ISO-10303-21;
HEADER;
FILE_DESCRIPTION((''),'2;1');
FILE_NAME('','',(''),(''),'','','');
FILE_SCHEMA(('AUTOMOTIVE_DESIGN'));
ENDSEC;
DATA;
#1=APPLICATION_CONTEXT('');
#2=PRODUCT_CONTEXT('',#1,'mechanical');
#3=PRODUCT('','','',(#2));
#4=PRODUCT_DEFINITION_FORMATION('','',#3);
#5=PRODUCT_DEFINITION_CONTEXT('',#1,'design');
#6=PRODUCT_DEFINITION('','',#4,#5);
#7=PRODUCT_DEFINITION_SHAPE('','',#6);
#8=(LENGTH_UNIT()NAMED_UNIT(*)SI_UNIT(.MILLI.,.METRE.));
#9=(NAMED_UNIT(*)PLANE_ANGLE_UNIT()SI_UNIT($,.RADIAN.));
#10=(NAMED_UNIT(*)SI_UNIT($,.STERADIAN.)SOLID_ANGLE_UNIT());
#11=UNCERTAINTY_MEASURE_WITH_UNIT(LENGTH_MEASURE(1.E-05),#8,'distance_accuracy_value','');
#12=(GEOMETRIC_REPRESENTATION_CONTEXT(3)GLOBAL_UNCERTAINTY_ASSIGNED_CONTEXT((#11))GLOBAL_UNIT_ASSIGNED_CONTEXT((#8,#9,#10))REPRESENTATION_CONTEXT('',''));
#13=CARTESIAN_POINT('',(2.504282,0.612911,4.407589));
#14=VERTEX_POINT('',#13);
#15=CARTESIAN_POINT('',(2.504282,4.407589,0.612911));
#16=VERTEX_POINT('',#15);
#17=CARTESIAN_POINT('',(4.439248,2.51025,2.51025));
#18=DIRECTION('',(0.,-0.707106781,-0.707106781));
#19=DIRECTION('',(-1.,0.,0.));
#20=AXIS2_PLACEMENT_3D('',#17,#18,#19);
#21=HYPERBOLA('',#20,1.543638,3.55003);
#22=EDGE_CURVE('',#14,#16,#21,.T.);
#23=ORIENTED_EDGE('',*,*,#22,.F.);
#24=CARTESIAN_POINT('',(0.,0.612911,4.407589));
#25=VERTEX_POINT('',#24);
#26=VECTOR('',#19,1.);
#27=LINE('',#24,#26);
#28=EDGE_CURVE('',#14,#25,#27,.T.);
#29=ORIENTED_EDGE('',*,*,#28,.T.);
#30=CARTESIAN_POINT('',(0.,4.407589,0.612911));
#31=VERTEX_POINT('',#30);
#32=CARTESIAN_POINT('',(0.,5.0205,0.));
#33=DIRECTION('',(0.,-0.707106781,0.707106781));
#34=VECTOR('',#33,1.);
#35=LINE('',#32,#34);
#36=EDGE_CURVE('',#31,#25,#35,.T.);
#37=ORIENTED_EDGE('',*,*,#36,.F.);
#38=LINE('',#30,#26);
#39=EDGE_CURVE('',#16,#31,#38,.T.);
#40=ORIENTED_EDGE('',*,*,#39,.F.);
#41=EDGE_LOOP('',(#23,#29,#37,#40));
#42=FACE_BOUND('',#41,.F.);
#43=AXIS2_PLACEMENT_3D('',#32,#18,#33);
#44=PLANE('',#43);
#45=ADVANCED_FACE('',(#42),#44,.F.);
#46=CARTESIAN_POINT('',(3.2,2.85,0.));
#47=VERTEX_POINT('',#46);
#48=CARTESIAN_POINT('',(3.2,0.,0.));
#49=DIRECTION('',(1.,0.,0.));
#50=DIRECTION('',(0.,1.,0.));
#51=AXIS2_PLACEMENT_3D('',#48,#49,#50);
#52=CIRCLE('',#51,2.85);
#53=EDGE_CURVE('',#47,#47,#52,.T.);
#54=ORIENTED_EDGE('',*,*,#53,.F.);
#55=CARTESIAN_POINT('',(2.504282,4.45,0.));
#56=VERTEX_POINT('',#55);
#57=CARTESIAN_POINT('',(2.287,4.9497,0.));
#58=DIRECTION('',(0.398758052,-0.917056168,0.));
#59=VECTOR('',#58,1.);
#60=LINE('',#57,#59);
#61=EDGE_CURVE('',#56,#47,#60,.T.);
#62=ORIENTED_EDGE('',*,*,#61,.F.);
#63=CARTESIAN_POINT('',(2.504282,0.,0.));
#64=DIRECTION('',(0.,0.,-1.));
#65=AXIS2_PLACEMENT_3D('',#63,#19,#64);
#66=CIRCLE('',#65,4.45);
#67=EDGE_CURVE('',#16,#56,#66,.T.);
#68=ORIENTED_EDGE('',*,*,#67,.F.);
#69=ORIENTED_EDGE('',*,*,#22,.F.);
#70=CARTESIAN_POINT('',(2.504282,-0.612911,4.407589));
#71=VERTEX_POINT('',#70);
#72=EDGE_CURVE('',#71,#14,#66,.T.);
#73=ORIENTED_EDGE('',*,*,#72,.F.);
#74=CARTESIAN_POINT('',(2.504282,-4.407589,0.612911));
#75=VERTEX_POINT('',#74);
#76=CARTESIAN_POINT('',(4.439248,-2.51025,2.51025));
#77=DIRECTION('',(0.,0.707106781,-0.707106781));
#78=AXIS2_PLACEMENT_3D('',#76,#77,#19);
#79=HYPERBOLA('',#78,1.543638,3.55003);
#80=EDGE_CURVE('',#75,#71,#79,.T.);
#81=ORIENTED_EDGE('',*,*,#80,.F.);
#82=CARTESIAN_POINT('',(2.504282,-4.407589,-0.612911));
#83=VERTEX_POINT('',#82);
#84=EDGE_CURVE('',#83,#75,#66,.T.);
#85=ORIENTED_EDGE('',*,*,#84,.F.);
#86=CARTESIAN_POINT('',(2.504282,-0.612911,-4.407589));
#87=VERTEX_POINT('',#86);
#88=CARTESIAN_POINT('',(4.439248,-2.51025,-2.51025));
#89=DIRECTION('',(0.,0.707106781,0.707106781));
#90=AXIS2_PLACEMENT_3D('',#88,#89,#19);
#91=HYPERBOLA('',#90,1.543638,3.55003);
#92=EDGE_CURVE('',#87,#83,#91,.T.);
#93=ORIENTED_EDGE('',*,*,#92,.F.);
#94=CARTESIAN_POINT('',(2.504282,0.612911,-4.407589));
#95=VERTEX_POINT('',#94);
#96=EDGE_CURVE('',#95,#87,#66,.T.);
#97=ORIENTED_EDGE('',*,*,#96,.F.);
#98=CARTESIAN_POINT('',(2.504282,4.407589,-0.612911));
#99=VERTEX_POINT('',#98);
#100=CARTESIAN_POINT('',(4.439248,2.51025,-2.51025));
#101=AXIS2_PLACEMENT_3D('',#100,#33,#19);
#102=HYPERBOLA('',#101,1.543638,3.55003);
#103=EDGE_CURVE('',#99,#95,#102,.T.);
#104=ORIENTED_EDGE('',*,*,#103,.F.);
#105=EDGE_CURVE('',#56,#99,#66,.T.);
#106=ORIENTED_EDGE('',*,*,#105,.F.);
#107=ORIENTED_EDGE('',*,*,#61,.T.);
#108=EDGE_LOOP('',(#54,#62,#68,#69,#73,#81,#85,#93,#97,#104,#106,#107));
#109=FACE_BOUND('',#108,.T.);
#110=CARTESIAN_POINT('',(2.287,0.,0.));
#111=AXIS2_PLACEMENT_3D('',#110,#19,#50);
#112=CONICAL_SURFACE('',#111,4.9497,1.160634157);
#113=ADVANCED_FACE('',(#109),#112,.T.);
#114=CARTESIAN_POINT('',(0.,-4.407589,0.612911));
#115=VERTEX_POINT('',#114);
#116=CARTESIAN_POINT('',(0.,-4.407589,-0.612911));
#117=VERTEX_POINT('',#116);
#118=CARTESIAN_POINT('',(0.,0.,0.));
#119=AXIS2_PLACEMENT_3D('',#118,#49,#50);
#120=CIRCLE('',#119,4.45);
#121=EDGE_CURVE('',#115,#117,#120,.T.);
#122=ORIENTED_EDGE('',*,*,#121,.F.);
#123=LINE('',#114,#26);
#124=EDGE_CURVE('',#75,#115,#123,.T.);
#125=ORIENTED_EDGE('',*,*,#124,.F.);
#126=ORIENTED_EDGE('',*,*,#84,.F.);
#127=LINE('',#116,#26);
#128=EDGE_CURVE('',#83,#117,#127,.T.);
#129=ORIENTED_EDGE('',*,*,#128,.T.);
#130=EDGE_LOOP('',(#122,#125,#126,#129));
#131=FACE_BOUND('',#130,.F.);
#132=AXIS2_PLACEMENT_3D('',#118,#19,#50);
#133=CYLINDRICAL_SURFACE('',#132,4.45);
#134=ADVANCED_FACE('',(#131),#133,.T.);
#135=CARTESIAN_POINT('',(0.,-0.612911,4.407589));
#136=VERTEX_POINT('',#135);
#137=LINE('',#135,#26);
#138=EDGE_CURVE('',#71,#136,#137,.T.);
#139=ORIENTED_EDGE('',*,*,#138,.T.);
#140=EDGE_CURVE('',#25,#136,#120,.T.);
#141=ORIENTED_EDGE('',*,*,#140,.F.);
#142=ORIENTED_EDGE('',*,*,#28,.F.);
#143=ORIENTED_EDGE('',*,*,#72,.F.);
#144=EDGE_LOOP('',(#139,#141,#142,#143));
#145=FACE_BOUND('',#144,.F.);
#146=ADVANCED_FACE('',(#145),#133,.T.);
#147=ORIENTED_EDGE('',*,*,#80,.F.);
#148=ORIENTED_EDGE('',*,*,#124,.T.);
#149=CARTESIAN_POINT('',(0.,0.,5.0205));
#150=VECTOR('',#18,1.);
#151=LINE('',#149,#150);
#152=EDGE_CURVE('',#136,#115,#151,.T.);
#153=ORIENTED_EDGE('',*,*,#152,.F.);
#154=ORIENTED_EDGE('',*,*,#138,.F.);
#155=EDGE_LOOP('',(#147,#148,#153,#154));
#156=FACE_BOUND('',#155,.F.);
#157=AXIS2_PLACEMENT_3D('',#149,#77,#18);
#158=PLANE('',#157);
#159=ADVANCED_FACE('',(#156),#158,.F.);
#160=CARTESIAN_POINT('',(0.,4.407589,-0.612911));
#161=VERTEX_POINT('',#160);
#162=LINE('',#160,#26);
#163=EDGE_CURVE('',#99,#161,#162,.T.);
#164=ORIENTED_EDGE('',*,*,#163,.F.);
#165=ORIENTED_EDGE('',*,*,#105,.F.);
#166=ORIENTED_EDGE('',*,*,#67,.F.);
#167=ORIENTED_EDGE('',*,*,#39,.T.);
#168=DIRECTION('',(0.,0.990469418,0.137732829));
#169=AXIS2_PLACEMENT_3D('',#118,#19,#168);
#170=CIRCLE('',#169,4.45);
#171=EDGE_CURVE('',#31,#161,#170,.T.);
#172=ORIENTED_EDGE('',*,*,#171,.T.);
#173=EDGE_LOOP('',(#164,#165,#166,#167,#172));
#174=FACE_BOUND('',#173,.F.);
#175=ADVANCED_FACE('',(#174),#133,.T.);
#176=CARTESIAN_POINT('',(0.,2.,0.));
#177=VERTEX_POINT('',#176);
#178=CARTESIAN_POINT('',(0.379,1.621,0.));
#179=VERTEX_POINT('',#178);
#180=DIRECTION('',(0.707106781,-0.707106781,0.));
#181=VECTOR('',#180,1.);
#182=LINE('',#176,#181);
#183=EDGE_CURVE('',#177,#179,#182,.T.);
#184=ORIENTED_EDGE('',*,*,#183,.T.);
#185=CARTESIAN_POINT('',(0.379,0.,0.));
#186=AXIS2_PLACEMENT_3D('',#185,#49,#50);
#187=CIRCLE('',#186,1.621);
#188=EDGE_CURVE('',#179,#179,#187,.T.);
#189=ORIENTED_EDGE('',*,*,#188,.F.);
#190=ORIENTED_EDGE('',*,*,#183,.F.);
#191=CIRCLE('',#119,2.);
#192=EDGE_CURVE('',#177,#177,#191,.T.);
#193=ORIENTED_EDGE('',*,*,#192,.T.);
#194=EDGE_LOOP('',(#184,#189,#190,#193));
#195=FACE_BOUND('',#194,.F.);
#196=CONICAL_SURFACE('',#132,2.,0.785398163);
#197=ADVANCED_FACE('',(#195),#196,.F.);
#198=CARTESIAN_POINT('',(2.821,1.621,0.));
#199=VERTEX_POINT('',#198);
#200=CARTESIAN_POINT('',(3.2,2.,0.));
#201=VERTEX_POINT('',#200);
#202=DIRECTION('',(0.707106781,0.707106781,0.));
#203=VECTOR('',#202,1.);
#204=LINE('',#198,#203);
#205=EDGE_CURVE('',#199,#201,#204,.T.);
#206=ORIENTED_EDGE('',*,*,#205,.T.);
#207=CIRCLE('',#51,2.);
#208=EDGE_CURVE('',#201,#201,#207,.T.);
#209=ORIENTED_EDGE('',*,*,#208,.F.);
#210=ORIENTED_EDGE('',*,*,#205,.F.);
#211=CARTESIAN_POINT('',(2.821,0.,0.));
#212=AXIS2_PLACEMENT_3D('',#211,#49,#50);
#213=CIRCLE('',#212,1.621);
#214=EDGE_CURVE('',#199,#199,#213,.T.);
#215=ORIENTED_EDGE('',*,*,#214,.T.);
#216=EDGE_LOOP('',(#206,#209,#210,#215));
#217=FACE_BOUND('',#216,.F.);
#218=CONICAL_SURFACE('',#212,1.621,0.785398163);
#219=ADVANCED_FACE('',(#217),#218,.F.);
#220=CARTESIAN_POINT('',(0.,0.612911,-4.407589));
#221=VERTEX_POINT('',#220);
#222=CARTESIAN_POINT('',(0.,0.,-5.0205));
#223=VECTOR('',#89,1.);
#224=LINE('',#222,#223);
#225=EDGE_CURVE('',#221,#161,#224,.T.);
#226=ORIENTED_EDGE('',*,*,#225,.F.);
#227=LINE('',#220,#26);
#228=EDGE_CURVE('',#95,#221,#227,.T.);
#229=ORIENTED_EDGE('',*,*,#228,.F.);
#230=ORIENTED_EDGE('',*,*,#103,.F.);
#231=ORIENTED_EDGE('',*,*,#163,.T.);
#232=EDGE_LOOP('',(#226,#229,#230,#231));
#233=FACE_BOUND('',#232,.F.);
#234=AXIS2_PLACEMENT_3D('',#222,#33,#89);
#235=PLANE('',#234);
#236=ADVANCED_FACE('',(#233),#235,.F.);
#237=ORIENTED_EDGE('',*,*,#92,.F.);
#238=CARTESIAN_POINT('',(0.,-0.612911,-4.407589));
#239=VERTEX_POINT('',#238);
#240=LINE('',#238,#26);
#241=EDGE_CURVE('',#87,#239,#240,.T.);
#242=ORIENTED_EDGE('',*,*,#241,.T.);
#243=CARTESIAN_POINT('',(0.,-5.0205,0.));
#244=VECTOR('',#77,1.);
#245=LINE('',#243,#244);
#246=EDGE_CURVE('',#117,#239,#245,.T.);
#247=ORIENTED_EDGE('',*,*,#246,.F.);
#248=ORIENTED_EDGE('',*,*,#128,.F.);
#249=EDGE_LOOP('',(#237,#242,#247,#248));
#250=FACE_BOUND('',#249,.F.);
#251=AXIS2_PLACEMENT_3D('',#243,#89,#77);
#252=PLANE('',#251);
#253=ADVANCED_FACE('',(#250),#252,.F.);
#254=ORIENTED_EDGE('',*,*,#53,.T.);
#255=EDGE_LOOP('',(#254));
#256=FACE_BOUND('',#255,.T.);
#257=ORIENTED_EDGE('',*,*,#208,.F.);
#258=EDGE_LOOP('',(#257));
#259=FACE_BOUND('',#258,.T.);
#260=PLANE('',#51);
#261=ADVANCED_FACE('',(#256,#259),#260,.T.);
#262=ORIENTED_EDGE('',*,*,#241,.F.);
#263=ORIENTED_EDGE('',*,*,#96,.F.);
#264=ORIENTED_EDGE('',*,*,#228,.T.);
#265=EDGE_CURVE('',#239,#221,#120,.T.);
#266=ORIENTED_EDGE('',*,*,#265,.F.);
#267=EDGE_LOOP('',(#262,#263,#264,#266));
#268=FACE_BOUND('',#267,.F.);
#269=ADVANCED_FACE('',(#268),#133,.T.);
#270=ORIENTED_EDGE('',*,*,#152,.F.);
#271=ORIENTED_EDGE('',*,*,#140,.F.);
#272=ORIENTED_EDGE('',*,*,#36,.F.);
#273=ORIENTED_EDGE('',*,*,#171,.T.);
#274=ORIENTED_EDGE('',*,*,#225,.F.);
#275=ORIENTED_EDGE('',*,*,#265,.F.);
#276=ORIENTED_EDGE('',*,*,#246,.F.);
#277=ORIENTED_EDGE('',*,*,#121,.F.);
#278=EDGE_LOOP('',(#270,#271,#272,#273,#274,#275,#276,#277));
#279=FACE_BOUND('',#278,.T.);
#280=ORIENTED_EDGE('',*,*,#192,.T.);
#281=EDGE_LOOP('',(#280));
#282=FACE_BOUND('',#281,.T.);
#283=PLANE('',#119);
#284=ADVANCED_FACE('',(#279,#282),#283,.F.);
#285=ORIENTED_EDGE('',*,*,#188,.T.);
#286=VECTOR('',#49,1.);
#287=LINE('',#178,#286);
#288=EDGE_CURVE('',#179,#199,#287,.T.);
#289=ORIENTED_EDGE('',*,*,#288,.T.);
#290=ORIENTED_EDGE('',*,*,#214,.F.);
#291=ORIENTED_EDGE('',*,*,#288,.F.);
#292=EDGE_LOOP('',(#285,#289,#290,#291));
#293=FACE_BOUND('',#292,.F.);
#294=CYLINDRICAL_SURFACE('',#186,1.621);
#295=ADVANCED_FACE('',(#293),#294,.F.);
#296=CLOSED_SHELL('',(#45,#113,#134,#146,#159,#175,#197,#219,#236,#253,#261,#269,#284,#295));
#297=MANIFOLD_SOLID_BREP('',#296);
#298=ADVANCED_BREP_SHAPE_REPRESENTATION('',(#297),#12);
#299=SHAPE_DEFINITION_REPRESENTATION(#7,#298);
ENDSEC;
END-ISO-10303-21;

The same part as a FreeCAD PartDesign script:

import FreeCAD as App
import Part
import Sketcher
from FreeCAD import Vector
Q = App.Units.Quantity

doc = App.newDocument("Part")
body = doc.addObject("PartDesign::Body", "Body")

# Sketch on XY plane
sketch1 = doc.addObject("Sketcher::SketchObject", "Sketch")
body.addObject(sketch1)
sketch1.AttachmentSupport = (doc.XY_Plane, [""])
sketch1.MapMode = "FlatFace"
sketch1.addGeometry(Part.LineSegment(Vector(0, 0, 0), Vector(3.2, 0, 0)), False)
sketch1.addGeometry(Part.LineSegment(Vector(3.2, 0, 0), Vector(3.2, 2.9, 0)), False)
sketch1.addGeometry(Part.LineSegment(Vector(3.2, 2.9, 0), Vector(2.3, 4.9, 0)), False)
sketch1.addGeometry(Part.LineSegment(Vector(2.3, 4.9, 0), Vector(0, 4.9, 0)), False)
sketch1.addGeometry(Part.LineSegment(Vector(0, 4.9, 0), Vector(0, 0, 0)), False)
sketch1.addConstraint(Sketcher.Constraint("Coincident", 0, 2, 1, 1))
sketch1.addConstraint(Sketcher.Constraint("Coincident", 1, 2, 2, 1))
sketch1.addConstraint(Sketcher.Constraint("Coincident", 2, 2, 3, 1))
sketch1.addConstraint(Sketcher.Constraint("Coincident", 3, 2, 4, 1))
sketch1.addConstraint(Sketcher.Constraint("Coincident", 4, 2, 0, 1))
sketch1.addConstraint(Sketcher.Constraint("Horizontal", 0))
sketch1.addConstraint(Sketcher.Constraint("Vertical", 1))
sketch1.addConstraint(Sketcher.Constraint("Horizontal", 3))
sketch1.addConstraint(Sketcher.Constraint("Vertical", 4))
sketch1.addConstraint(Sketcher.Constraint("Coincident", 4, 2, -1, 1))
sketch1.addConstraint(Sketcher.Constraint("DistanceX", 0, 1, 0, 2, 3.2))
sketch1.addConstraint(Sketcher.Constraint("Angle", 2, Q("113.5006 deg")))
sketch1.addConstraint(Sketcher.Constraint("DistanceY", 1, 1, 1, 2, 2.85))
sketch1.addConstraint(Sketcher.Constraint("DistanceX", 3, 2, 3, 1, 2.287))
revolution = doc.addObject("PartDesign::Revolution", "Revolution")
body.addObject(revolution)
revolution.Profile = sketch1
revolution.ReferenceAxis = (sketch1, ["H_Axis"])
revolution.Angle = 360

# Sketch on YZ plane
sketch2 = doc.addObject("Sketcher::SketchObject", "Sketch001")
body.addObject(sketch2)
sketch2.AttachmentSupport = (doc.YZ_Plane, [""])
sketch2.MapMode = "FlatFace"
sketch2.addGeometry(Part.LineSegment(Vector(14, -14, 0), Vector(14, 14, 0)), False)
sketch2.addGeometry(Part.LineSegment(Vector(14, 14, 0), Vector(-14, 14, 0)), False)
sketch2.addGeometry(Part.LineSegment(Vector(-14, 14, 0), Vector(-14, -14, 0)), False)
sketch2.addGeometry(Part.LineSegment(Vector(-14, -14, 0), Vector(14, -14, 0)), False)
sketch2.addGeometry(Part.LineSegment(Vector(-5, 0, 0), Vector(0, 5, 0)), False)
sketch2.addGeometry(Part.LineSegment(Vector(0, 5, 0), Vector(5, 0, 0)), False)
sketch2.addGeometry(Part.LineSegment(Vector(5, 0, 0), Vector(0, -5, 0)), False)
sketch2.addGeometry(Part.LineSegment(Vector(0, -5, 0), Vector(-5, 0, 0)), False)
sketch2.addConstraint(Sketcher.Constraint("Coincident", 0, 2, 1, 1))
sketch2.addConstraint(Sketcher.Constraint("Coincident", 1, 2, 2, 1))
sketch2.addConstraint(Sketcher.Constraint("Coincident", 2, 2, 3, 1))
sketch2.addConstraint(Sketcher.Constraint("Coincident", 3, 2, 0, 1))
sketch2.addConstraint(Sketcher.Constraint("Coincident", 4, 2, 5, 1))
sketch2.addConstraint(Sketcher.Constraint("Coincident", 5, 2, 6, 1))
sketch2.addConstraint(Sketcher.Constraint("Coincident", 6, 2, 7, 1))
sketch2.addConstraint(Sketcher.Constraint("Coincident", 7, 2, 4, 1))
sketch2.addConstraint(Sketcher.Constraint("Vertical", 0))
sketch2.addConstraint(Sketcher.Constraint("Horizontal", 1))
sketch2.addConstraint(Sketcher.Constraint("Vertical", 2))
sketch2.addConstraint(Sketcher.Constraint("Horizontal", 3))
sketch2.addConstraint(Sketcher.Constraint("Symmetric", 0, 2, 2, 2, -1, 1))
sketch2.addConstraint(Sketcher.Constraint("Symmetric", 4, 2, 6, 2, -1, 1))
sketch2.addConstraint(Sketcher.Constraint("Symmetric", 5, 2, 7, 2, -1, 1))
sketch2.addConstraint(Sketcher.Constraint("PointOnObject", 4, 2, -2))
sketch2.addConstraint(Sketcher.Constraint("PointOnObject", 5, 2, -1))
sketch2.addConstraint(Sketcher.Constraint("Perpendicular", 4, 5))
sketch2.addConstraint(Sketcher.Constraint("Equal", 3, 0))
sketch2.addConstraint(Sketcher.Constraint("DistanceX", 1, 2, 1, 1, 28.0))
sketch2.addConstraint(Sketcher.Constraint("Distance", 4, 7.1))
pocket1 = doc.addObject("PartDesign::Pocket", "Pocket")
body.addObject(pocket1)
pocket1.Profile = sketch2
pocket1.Length = 3.2
pocket1.Reversed = True

# Sketch on XY plane
sketch3 = doc.addObject("Sketcher::SketchObject", "Sketch002")
body.addObject(sketch3)
sketch3.AttachmentSupport = (doc.XY_Plane, [""])
sketch3.MapMode = "FlatFace"
sketch3.addGeometry(Part.LineSegment(Vector(0, 0, 0), Vector(3.2, 0, 0)), False)
sketch3.addGeometry(Part.LineSegment(Vector(3.2, 0, 0), Vector(3.2, 2, 0)), False)
sketch3.addGeometry(Part.LineSegment(Vector(3.2, 2, 0), Vector(2.8, 1.6, 0)), False)
sketch3.addGeometry(Part.LineSegment(Vector(2.8, 1.6, 0), Vector(0.4, 1.6, 0)), False)
sketch3.addGeometry(Part.LineSegment(Vector(0.4, 1.6, 0), Vector(0, 2, 0)), False)
sketch3.addGeometry(Part.LineSegment(Vector(0, 2, 0), Vector(0, 0, 0)), False)
sketch3.addConstraint(Sketcher.Constraint("Coincident", 0, 2, 1, 1))
sketch3.addConstraint(Sketcher.Constraint("Coincident", 1, 2, 2, 1))
sketch3.addConstraint(Sketcher.Constraint("Coincident", 2, 2, 3, 1))
sketch3.addConstraint(Sketcher.Constraint("Coincident", 3, 2, 4, 1))
sketch3.addConstraint(Sketcher.Constraint("Coincident", 4, 2, 5, 1))
sketch3.addConstraint(Sketcher.Constraint("Coincident", 5, 2, 0, 1))
sketch3.addConstraint(Sketcher.Constraint("Horizontal", 0))
sketch3.addConstraint(Sketcher.Constraint("Vertical", 1))
sketch3.addConstraint(Sketcher.Constraint("Horizontal", 3))
sketch3.addConstraint(Sketcher.Constraint("Vertical", 5))
sketch3.addConstraint(Sketcher.Constraint("Coincident", 5, 2, -1, 1))
sketch3.addConstraint(Sketcher.Constraint("Perpendicular", 2, 4))
sketch3.addConstraint(Sketcher.Constraint("Horizontal", 1, 2, 4, 2))
sketch3.addConstraint(Sketcher.Constraint("Equal", 2, 4))
sketch3.addConstraint(Sketcher.Constraint("DistanceY", 1, 1, 1, 2, 2.0))
sketch3.addConstraint(Sketcher.Constraint("DistanceX", 0, 1, 0, 2, 3.2))
sketch3.addConstraint(Sketcher.Constraint("DistanceX", 3, 2, 3, 1, 2.442))
groove = doc.addObject("PartDesign::Groove", "Groove")
body.addObject(groove)
groove.Profile = sketch3
groove.ReferenceAxis = (sketch3, ["H_Axis"])
groove.Angle = 360

# Sketch on YZ plane
sketch4 = doc.addObject("Sketcher::SketchObject", "Sketch003")
body.addObject(sketch4)
sketch4.AttachmentSupport = (doc.YZ_Plane, [""])
sketch4.MapMode = "FlatFace"
sketch4.addGeometry(Part.LineSegment(Vector(7, -7, 0), Vector(7, 7, 0)), False)
sketch4.addGeometry(Part.LineSegment(Vector(7, 7, 0), Vector(-7, 7, 0)), False)
sketch4.addGeometry(Part.LineSegment(Vector(-7, 7, 0), Vector(-7, -7, 0)), False)
sketch4.addGeometry(Part.LineSegment(Vector(-7, -7, 0), Vector(7, -7, 0)), False)
sketch4.addGeometry(Part.Circle(Vector(0, 0, 0), Vector(0, 0, 1), 4.5), False)
sketch4.addConstraint(Sketcher.Constraint("Coincident", 0, 2, 1, 1))
sketch4.addConstraint(Sketcher.Constraint("Coincident", 1, 2, 2, 1))
sketch4.addConstraint(Sketcher.Constraint("Coincident", 2, 2, 3, 1))
sketch4.addConstraint(Sketcher.Constraint("Coincident", 3, 2, 0, 1))
sketch4.addConstraint(Sketcher.Constraint("Vertical", 0))
sketch4.addConstraint(Sketcher.Constraint("Horizontal", 1))
sketch4.addConstraint(Sketcher.Constraint("Vertical", 2))
sketch4.addConstraint(Sketcher.Constraint("Horizontal", 3))
sketch4.addConstraint(Sketcher.Constraint("Coincident", 4, 3, -1, 1))
sketch4.addConstraint(Sketcher.Constraint("Symmetric", 0, 2, 2, 2, -1, 1))
sketch4.addConstraint(Sketcher.Constraint("Equal", 3, 0))
sketch4.addConstraint(Sketcher.Constraint("Diameter", 4, 8.9))
sketch4.addConstraint(Sketcher.Constraint("DistanceX", 1, 2, 1, 1, 14.0))
pocket2 = doc.addObject("PartDesign::Pocket", "Pocket001")
body.addObject(pocket2)
pocket2.Profile = sketch4
pocket2.Length = 3.2
pocket2.Reversed = True

doc.recompute()
